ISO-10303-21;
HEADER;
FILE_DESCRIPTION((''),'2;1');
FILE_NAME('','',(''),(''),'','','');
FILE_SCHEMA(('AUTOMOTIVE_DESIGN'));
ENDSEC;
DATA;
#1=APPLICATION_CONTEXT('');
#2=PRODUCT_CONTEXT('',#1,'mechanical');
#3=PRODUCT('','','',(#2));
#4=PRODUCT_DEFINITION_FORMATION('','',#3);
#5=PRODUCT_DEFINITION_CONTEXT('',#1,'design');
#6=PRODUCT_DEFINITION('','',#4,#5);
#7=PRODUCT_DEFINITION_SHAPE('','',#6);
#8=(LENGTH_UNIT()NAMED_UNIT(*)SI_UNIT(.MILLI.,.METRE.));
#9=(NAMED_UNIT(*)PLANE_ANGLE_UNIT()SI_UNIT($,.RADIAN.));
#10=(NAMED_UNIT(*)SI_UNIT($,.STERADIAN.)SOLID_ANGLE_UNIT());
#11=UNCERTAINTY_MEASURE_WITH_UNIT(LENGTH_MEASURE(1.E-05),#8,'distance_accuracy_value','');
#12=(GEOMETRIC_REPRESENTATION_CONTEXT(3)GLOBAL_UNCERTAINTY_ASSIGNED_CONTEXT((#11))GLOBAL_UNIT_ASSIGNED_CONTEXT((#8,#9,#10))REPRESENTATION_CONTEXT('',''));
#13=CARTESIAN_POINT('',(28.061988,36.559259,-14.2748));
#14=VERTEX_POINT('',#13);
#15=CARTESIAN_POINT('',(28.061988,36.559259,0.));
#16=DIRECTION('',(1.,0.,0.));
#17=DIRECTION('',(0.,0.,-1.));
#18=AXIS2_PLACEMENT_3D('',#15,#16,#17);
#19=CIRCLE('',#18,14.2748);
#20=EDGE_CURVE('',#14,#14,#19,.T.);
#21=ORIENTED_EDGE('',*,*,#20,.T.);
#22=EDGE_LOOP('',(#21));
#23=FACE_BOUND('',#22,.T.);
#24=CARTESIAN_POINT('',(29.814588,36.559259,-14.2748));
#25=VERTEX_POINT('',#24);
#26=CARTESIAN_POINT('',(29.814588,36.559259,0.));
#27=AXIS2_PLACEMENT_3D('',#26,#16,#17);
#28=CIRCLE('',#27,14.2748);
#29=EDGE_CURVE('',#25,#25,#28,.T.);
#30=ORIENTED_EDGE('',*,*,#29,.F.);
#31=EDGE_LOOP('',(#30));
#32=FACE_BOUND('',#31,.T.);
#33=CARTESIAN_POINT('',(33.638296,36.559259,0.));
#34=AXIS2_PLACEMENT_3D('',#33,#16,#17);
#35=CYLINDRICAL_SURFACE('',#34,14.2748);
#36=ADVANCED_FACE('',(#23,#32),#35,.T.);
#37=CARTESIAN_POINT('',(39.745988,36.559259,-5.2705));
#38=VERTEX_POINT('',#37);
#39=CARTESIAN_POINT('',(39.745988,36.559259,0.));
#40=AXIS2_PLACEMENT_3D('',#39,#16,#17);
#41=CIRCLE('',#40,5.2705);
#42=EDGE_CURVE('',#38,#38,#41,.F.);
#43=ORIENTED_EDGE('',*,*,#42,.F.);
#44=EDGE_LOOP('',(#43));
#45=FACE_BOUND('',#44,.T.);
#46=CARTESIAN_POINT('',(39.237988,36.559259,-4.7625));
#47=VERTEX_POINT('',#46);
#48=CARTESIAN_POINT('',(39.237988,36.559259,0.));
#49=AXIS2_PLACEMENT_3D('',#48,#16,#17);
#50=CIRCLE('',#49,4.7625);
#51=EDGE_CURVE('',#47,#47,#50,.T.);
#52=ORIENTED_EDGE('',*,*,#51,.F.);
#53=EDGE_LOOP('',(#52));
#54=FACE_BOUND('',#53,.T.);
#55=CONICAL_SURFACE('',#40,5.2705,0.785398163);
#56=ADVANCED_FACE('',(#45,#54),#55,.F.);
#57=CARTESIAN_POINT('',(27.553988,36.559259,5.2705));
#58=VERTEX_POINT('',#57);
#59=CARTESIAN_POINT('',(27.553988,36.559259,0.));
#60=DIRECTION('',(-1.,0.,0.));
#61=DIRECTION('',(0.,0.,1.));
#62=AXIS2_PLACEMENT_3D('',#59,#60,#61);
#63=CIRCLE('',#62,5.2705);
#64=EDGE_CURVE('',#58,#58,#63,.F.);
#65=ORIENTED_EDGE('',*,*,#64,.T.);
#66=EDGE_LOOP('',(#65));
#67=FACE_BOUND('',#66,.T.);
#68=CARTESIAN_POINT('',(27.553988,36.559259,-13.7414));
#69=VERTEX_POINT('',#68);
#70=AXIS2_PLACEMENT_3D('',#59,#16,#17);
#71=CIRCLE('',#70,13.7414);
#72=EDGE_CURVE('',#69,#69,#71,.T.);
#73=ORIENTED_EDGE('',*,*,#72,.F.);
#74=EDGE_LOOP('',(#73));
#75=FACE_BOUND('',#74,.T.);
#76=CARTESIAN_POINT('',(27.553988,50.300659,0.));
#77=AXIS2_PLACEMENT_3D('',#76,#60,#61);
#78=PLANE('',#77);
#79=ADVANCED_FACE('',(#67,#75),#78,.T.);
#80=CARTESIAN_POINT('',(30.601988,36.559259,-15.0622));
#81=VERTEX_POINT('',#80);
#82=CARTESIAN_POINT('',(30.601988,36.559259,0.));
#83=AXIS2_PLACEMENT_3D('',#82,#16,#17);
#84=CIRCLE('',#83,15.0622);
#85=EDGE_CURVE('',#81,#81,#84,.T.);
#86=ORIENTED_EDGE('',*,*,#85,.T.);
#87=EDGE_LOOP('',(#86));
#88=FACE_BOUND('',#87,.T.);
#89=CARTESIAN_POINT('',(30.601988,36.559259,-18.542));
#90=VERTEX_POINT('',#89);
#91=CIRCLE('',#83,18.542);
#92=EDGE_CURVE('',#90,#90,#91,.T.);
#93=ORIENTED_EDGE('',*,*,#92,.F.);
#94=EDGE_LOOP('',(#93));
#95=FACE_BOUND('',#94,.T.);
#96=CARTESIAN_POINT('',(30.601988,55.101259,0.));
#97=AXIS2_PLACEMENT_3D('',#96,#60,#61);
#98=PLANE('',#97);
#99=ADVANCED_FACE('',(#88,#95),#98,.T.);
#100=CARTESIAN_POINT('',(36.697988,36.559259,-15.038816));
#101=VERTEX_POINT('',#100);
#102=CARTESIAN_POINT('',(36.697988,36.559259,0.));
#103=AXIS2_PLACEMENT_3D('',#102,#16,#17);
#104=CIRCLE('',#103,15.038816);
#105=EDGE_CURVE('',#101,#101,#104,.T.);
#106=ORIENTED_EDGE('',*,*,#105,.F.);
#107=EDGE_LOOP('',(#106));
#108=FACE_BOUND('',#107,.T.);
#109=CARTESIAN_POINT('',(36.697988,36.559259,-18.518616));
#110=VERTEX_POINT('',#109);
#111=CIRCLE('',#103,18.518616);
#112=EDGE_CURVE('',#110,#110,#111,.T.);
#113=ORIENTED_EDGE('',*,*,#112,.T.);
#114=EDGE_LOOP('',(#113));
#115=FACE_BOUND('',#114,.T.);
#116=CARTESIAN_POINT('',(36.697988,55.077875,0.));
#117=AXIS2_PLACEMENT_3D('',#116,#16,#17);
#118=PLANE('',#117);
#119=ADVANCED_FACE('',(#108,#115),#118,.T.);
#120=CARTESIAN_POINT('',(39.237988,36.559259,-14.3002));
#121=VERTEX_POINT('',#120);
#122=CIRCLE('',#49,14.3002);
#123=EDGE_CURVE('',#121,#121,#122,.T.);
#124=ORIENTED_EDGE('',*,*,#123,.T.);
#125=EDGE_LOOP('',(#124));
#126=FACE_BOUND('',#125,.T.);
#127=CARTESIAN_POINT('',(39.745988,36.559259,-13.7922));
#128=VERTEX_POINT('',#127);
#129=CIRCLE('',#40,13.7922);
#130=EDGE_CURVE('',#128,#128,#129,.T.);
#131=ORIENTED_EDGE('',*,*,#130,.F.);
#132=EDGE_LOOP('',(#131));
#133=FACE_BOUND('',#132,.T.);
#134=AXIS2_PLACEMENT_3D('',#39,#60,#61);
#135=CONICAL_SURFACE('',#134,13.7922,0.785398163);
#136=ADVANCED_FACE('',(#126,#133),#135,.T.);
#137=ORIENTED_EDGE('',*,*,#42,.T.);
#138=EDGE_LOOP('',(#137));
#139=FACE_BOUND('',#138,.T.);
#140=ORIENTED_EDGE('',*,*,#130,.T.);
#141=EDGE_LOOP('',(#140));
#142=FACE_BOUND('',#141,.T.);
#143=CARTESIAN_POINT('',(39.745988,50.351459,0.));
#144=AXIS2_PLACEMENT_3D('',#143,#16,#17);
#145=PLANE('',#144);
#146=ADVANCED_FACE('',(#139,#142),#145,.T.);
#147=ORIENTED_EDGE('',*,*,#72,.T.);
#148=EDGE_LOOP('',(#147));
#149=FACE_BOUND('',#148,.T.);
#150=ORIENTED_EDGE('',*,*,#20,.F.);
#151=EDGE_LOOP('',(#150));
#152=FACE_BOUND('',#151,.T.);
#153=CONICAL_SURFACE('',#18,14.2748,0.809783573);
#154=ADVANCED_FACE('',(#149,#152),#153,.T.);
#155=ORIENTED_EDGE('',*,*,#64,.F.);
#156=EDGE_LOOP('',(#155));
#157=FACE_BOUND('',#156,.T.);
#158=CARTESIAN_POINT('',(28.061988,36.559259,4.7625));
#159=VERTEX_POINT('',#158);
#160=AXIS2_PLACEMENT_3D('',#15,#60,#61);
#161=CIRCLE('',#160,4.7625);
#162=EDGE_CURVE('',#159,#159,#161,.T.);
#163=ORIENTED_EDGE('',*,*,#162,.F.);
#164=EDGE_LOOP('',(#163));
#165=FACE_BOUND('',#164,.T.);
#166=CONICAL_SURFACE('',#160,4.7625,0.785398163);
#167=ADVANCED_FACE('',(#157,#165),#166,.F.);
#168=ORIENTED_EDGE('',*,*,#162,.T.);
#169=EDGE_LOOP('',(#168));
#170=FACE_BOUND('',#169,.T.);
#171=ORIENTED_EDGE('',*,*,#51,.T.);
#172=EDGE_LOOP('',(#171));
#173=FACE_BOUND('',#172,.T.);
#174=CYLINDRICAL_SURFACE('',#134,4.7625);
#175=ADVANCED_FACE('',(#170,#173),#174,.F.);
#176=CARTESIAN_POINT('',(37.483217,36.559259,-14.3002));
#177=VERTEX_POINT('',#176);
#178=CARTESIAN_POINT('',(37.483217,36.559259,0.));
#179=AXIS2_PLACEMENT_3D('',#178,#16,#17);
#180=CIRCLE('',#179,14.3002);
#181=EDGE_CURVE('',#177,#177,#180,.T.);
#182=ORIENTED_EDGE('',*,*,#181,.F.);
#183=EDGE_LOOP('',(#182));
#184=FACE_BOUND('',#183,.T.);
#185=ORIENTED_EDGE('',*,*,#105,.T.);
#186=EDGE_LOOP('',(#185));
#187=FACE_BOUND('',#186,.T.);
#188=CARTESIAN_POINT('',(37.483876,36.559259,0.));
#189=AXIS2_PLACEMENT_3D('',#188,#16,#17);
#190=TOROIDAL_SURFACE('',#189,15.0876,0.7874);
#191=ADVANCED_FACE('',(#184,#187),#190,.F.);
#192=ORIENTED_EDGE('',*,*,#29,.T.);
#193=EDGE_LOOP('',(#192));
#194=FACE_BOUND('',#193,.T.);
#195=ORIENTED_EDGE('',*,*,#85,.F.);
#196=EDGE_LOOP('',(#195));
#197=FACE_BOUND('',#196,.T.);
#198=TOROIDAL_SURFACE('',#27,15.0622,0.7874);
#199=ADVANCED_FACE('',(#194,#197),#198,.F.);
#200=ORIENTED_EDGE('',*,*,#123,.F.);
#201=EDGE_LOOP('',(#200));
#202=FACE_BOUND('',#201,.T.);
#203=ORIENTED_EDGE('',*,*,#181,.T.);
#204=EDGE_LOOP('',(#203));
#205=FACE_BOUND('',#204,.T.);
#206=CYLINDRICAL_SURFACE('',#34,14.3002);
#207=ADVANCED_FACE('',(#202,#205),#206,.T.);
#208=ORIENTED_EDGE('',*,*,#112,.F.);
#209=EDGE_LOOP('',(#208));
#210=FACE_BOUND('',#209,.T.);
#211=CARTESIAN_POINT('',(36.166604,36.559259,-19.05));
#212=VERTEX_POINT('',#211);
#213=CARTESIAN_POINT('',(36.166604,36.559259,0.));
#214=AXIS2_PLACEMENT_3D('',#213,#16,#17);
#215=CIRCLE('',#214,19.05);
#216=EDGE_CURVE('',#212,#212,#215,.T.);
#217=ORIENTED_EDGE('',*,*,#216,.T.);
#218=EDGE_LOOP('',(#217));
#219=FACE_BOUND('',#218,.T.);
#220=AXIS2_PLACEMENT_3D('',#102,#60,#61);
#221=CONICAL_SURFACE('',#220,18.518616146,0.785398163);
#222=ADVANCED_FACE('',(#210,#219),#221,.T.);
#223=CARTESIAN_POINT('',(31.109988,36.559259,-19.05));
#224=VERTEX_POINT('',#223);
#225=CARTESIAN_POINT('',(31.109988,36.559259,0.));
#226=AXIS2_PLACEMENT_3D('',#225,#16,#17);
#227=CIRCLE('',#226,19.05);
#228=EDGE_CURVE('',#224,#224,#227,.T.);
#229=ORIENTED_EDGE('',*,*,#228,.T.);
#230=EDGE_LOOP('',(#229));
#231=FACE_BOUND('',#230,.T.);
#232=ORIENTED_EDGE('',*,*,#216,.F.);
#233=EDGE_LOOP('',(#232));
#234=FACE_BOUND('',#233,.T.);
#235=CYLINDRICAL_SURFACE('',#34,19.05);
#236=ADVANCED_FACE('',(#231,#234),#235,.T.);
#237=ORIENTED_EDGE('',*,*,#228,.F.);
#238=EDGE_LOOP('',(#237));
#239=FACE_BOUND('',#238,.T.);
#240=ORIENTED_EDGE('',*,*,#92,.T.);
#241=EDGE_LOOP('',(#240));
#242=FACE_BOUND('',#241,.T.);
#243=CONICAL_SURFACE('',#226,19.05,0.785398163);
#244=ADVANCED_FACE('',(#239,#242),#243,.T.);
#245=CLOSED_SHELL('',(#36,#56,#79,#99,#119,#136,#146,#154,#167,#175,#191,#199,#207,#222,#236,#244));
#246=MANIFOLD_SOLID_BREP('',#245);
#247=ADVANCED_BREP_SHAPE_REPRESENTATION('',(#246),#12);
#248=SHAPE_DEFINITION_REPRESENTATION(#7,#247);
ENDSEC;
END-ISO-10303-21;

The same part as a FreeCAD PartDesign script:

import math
import FreeCAD as App
import Part
import Sketcher
from FreeCAD import Vector
Q = App.Units.Quantity


def edges_at(feature, points):
    """Names of the edges that pass closest to the given points."""
    edges = feature.Shape.Edges
    near = lambda p: min(range(len(edges)), key=lambda i: edges[i].distToShape(Part.Vertex(*p))[0])
    return sorted({f"Edge{near(p) + 1}" for p in points})

doc = App.newDocument("Part")
body = doc.addObject("PartDesign::Body", "Body")

# Sketch on XY plane
sketch1 = doc.addObject("Sketcher::SketchObject", "Sketch")
body.addObject(sketch1)
sketch1.AttachmentSupport = (doc.XY_Plane, [""])
sketch1.MapMode = "FlatFace"
sketch1.addGeometry(Part.LineSegment(Vector(27.6, 50.3, 0), Vector(27.6, 36.6, 0)), False)
sketch1.addGeometry(Part.LineSegment(Vector(27.6, 36.6, 0), Vector(33.6, 36.6, 0)), False)
sketch1.addGeometry(Part.LineSegment(Vector(33.6, 36.6, 0), Vector(39.7, 36.6, 0)), False)
sketch1.addGeometry(Part.LineSegment(Vector(39.7, 36.6, 0), Vector(39.7, 50.4, 0)), False)
sketch1.addGeometry(Part.LineSegment(Vector(39.7, 50.4, 0), Vector(39.2, 50.9, 0)), False)
sketch1.addGeometry(Part.LineSegment(Vector(39.2, 50.9, 0), Vector(37.5, 50.9, 0)), False)
sketch1.addGeometry(Part.ArcOfCircle(Part.Circle(Vector(37.5, 51.6, 0), Vector(0, 0, 1), 0.8), math.radians(-176), math.radians(-90)), False)
sketch1.addGeometry(Part.LineSegment(Vector(36.7, 51.6, 0), Vector(36.7, 55.1, 0)), False)
sketch1.addGeometry(Part.LineSegment(Vector(36.7, 55.1, 0), Vector(36.2, 55.6, 0)), False)
sketch1.addGeometry(Part.LineSegment(Vector(36.2, 55.6, 0), Vector(31.1, 55.6, 0)), False)
sketch1.addGeometry(Part.LineSegment(Vector(31.1, 55.6, 0), Vector(30.6, 55.1, 0)), False)
sketch1.addGeometry(Part.LineSegment(Vector(30.6, 55.1, 0), Vector(30.6, 51.6, 0)), False)
sketch1.addGeometry(Part.ArcOfCircle(Part.Circle(Vector(29.8, 51.6, 0), Vector(0, 0, 1), 0.8), math.radians(-90), math.radians(0)), False)
sketch1.addGeometry(Part.LineSegment(Vector(29.8, 50.8, 0), Vector(28.1, 50.8, 0)), False)
sketch1.addGeometry(Part.LineSegment(Vector(28.1, 50.8, 0), Vector(27.6, 50.3, 0)), False)
sketch1.addGeometry(Part.LineSegment(Vector(39.7, 36.6, 0), Vector(27.6, 36.6, 0)), True)  # axis
sketch1.addConstraint(Sketcher.Constraint("Coincident", 0, 2, 1, 1))
sketch1.addConstraint(Sketcher.Constraint("Coincident", 1, 2, 2, 1))
sketch1.addConstraint(Sketcher.Constraint("Coincident", 2, 2, 3, 1))
sketch1.addConstraint(Sketcher.Constraint("Coincident", 3, 2, 4, 1))
sketch1.addConstraint(Sketcher.Constraint("Coincident", 4, 2, 5, 1))
sketch1.addConstraint(Sketcher.Constraint("Coincident", 5, 2, 6, 2))
sketch1.addConstraint(Sketcher.Constraint("Coincident", 6, 1, 7, 1))
sketch1.addConstraint(Sketcher.Constraint("Coincident", 7, 2, 8, 1))
sketch1.addConstraint(Sketcher.Constraint("Coincident", 8, 2, 9, 1))
sketch1.addConstraint(Sketcher.Constraint("Coincident", 9, 2, 10, 1))
sketch1.addConstraint(Sketcher.Constraint("Coincident", 10, 2, 11, 1))
sketch1.addConstraint(Sketcher.Constraint("Tangent", 11, 2, 12, 2))
sketch1.addConstraint(Sketcher.Constraint("Tangent", 12, 1, 13, 1))
sketch1.addConstraint(Sketcher.Constraint("Coincident", 13, 2, 14, 1))
sketch1.addConstraint(Sketcher.Constraint("Coincident", 14, 2, 0, 1))
sketch1.addConstraint(Sketcher.Constraint("Vertical", 0))
sketch1.addConstraint(Sketcher.Constraint("Horizontal", 1))
sketch1.addConstraint(Sketcher.Constraint("Vertical", 3))
sketch1.addConstraint(Sketcher.Constraint("Horizontal", 5))
sketch1.addConstraint(Sketcher.Constraint("Vertical", 7))
sketch1.addConstraint(Sketcher.Constraint("Horizontal", 9))
sketch1.addConstraint(Sketcher.Constraint("Vertical", 11))
sketch1.addConstraint(Sketcher.Constraint("Horizontal", 13))
sketch1.addConstraint(Sketcher.Constraint("Horizontal", 15))
sketch1.addConstraint(Sketcher.Constraint("Coincident", 15, 2, 0, 2))
sketch1.addConstraint(Sketcher.Constraint("Equal", 6, 12))
sketch1.addConstraint(Sketcher.Constraint("Parallel", 4, 8))
sketch1.addConstraint(Sketcher.Constraint("Perpendicular", 8, 10))
sketch1.addConstraint(Sketcher.Constraint("Vertical", 3, 2, 15, 1))
sketch1.addConstraint(Sketcher.Constraint("Equal", 7, 11))
sketch1.addConstraint(Sketcher.Constraint("Equal", 4, 10))
sketch1.addConstraint(Sketcher.Constraint("Angle", 4, Q("135 deg")))
sketch1.addConstraint(Sketcher.Constraint("Radius", 6, Q("0.031 in")))
sketch1.addConstraint(Sketcher.Constraint("DistanceX", 15, 2, 15, 1, Q("0.48 in")))
sketch1.addConstraint(Sketcher.Constraint("DistanceX", 6, 1, 4, 2, Q("0.1 in")))
sketch1.addConstraint(Sketcher.Constraint("DistanceX", 13, 2, 11, 2, Q("0.1 in")))
sketch1.addConstraint(Sketcher.Constraint("DistanceY", 0, 2, 0, 1, Q("0.541 in")))
sketch1.addConstraint(Sketcher.Constraint("DistanceY", 7, 1, 7, 2, Q("0.137 in")))
sketch1.addConstraint(Sketcher.Constraint("DistanceY", 3, 2, 12, 3, Q("0.05 in")))
sketch1.addConstraint(Sketcher.Constraint("DistanceX", 4, 2, 3, 2, Q("0.02 in")))
sketch1.addConstraint(Sketcher.Constraint("DistanceX", 9, 2, 7, 2, Q("0.22 in")))
sketch1.addConstraint(Sketcher.Constraint("Distance", 14, Q("0.029 in")))
sketch1.addConstraint(Sketcher.Constraint("DistanceY", 3, 1, 3, 2, Q("0.5425 in")))
sketch1.addConstraint(Sketcher.Constraint("DistanceX", 1, 1, 1, 2, 6.084308))
sketch1.addConstraint(Sketcher.Constraint("DistanceX", 5, 2, 5, 1, 1.754771))
sketch1.addConstraint(Sketcher.Constraint("Distance", 8, 0.75149))
sketch1.addConstraint(Sketcher.Constraint("DistanceY", -1, 1, 6, 3, 51.646858))
sketch1.addConstraint(Sketcher.Constraint("DistanceX", -1, 1, 12, 3, 29.814588))
revolution = doc.addObject("PartDesign::Revolution", "Revolution")
body.addObject(revolution)
revolution.Profile = sketch1
revolution.ReferenceAxis = (sketch1, ["Axis0"])
revolution.Angle = 360

# Sketch on YZ plane
sketch2 = doc.addObject("Sketcher::SketchObject", "Sketch001")
body.addObject(sketch2)
sketch2.AttachmentSupport = (doc.YZ_Plane, [""])
sketch2.MapMode = "FlatFace"
sketch2.AttachmentOffset = App.Placement(Vector(0, 0, 27.553988), App.Rotation())
sketch2.addGeometry(Part.Circle(Vector(36.6, 0, 0), Vector(0, 0, 1), 4.8), False)
sketch2.addConstraint(Sketcher.Constraint("PointOnObject", 0, 3, -1))
sketch2.addConstraint(Sketcher.Constraint("Diameter", 0, Q("0.375 in")))
sketch2.addConstraint(Sketcher.Constraint("DistanceX", -1, 1, 0, 3, 36.559259))
pocket1 = doc.addObject("PartDesign::Pocket", "Pocket")
body.addObject(pocket1)
pocket1.Profile = sketch2
pocket1.Type = "ThroughAll"
pocket1.Reversed = True
doc.recompute()

chamfer = doc.addObject("PartDesign::Chamfer", "Chamfer")
body.addObject(chamfer)
chamfer.Base = (pocket1, edges_at(pocket1, [(39.746, 36.559, -4.763), (27.554, 36.559, -4.763)]))
chamfer.Size = Q("0.02 in")

doc.recompute()
